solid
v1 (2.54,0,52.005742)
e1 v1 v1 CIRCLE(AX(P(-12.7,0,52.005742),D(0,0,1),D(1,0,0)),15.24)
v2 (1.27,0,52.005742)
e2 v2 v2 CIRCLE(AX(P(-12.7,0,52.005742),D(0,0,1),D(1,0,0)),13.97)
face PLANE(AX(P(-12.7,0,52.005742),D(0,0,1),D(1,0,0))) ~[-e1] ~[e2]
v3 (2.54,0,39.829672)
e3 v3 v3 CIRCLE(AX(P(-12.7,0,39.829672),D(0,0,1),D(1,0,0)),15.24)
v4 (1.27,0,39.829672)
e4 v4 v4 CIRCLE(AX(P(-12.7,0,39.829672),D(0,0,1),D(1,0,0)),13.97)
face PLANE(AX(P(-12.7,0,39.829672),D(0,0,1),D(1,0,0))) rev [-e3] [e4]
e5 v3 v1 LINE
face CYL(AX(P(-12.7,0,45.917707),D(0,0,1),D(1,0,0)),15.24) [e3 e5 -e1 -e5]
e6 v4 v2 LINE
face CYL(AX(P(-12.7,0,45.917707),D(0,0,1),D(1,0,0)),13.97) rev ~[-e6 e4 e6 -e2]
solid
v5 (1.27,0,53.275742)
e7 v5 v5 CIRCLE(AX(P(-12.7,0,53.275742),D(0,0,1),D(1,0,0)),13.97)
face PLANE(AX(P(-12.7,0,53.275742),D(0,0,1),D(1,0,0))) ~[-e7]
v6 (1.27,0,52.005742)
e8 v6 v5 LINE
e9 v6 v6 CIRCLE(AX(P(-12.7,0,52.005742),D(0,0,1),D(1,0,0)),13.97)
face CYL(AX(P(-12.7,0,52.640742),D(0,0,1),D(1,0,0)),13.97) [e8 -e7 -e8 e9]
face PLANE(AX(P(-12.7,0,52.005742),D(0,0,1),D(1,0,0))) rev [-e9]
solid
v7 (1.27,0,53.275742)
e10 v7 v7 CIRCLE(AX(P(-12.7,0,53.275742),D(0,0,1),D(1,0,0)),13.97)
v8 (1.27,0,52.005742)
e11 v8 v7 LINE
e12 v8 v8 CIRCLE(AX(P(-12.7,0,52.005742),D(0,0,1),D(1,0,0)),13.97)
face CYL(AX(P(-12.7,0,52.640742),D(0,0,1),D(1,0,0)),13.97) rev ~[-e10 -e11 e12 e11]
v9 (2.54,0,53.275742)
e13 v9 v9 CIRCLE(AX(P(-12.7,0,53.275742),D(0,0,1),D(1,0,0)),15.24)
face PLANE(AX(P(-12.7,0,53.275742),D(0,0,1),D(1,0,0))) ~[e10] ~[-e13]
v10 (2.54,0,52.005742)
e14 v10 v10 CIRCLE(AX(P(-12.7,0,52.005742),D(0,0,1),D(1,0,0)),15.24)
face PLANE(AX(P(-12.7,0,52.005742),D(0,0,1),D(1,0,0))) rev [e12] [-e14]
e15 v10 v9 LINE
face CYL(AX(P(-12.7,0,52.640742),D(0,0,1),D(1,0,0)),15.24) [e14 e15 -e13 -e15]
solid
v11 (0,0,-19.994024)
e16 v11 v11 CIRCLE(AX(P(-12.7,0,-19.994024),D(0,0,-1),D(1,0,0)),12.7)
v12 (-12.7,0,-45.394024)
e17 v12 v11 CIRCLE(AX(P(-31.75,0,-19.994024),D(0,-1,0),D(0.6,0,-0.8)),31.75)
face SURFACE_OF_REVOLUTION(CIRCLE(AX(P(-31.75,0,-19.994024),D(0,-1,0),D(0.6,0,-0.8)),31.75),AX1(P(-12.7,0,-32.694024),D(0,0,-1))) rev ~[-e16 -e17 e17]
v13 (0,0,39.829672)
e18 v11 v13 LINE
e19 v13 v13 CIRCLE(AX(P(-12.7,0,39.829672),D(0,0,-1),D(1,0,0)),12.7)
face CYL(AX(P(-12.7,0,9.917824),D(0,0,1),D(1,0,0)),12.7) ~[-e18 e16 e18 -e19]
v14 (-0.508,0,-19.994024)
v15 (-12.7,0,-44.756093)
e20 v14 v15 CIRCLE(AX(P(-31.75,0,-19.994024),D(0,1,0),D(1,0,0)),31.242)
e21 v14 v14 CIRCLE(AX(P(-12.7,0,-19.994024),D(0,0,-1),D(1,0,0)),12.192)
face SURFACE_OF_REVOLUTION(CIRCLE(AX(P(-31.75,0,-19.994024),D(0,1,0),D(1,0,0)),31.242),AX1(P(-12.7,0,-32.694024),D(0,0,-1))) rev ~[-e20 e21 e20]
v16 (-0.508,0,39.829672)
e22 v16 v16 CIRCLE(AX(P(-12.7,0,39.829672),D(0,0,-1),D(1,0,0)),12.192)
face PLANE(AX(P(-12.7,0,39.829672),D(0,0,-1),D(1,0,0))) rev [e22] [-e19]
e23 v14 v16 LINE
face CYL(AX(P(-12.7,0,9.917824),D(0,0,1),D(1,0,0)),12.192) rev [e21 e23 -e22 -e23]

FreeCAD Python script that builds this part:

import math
import FreeCAD as App
import Part
import Sketcher
Q = App.Units.Quantity

doc = App.newDocument("Part")
body = doc.addObject("PartDesign::Body", "Body")

sketch1 = body.newObject("Sketcher::SketchObject", "Sketch")
sketch1.AttachmentSupport = (doc.getObject("XZ_Plane"), [""])
sketch1.MapMode = "FlatFace"
sketch1.addGeometry(Part.LineSegment(App.Vector(1.3, 52, 0), App.Vector(1.3, 39.8, 0)), False)
sketch1.addGeometry(Part.LineSegment(App.Vector(1.3, 39.8, 0), App.Vector(2.5, 39.8, 0)), False)
sketch1.addGeometry(Part.LineSegment(App.Vector(2.5, 39.8, 0), App.Vector(2.5, 52, 0)), False)
sketch1.addGeometry(Part.LineSegment(App.Vector(2.5, 52, 0), App.Vector(1.3, 52, 0)), False)
sketch1.addGeometry(Part.LineSegment(App.Vector(-12.7, 39.8, 0), App.Vector(-12.7, 52, 0)), True)
sketch1.addConstraint(Sketcher.Constraint("Coincident", 0, 2, 1, 1))
sketch1.addConstraint(Sketcher.Constraint("Coincident", 1, 2, 2, 1))
sketch1.addConstraint(Sketcher.Constraint("Coincident", 2, 2, 3, 1))
sketch1.addConstraint(Sketcher.Constraint("Coincident", 3, 2, 0, 1))
sketch1.addConstraint(Sketcher.Constraint("Vertical", 0))
sketch1.addConstraint(Sketcher.Constraint("Horizontal", 1))
sketch1.addConstraint(Sketcher.Constraint("Vertical", 2))
sketch1.addConstraint(Sketcher.Constraint("Horizontal", 3))
sketch1.addConstraint(Sketcher.Constraint("Vertical", 4))
sketch1.addConstraint(Sketcher.Constraint("Horizontal", 1, 2, 4, 1))
sketch1.addConstraint(Sketcher.Constraint("Horizontal", 3, 2, 4, 2))
sketch1.addConstraint(Sketcher.Constraint("DistanceX", 1, 1, 1, 2, Q("0.05 in")))
sketch1.addConstraint(Sketcher.Constraint("DistanceX", -1, 1, 1, 2, Q("0.1 in")))
sketch1.addConstraint(Sketcher.Constraint("DistanceX", 4, 1, -1, 1, Q("0.5 in")))
sketch1.addConstraint(Sketcher.Constraint("DistanceY", 0, 2, 0, 1, Q("12.176069 mm")))
sketch1.addConstraint(Sketcher.Constraint("DistanceY", -1, 1, 2, 2, Q("52.005742 mm")))
revolution = body.newObject("PartDesign::Revolution", "Revolution")
revolution.Profile = sketch1
revolution.ReferenceAxis = (sketch1, ["Axis0"])
revolution.Angle = 360
body2 = doc.addObject("PartDesign::Body", "Body001")

sketch2 = body2.newObject("Sketcher::SketchObject", "Sketch001")
sketch2.AttachmentSupport = (doc.getObject("XZ_Plane001"), [""])
sketch2.MapMode = "FlatFace"
sketch2.addGeometry(Part.LineSegment(App.Vector(-0.5, 39.8, 0), App.Vector(-0.5, -20, 0)), False)
sketch2.addGeometry(Part.LineSegment(App.Vector(-0.5, -20, 0), App.Vector(0, -20, 0)), False)
sketch2.addGeometry(Part.LineSegment(App.Vector(0, -20, 0), App.Vector(0, 39.8, 0)), False)
sketch2.addGeometry(Part.LineSegment(App.Vector(0, 39.8, 0), App.Vector(-0.5, 39.8, 0)), False)
sketch2.addGeometry(Part.LineSegment(App.Vector(-12.7, 39.8, 0), App.Vector(-12.7, -20, 0)), True)
sketch2.addConstraint(Sketcher.Constraint("Coincident", 0, 2, 1, 1))
sketch2.addConstraint(Sketcher.Constraint("Coincident", 1, 2, 2, 1))
sketch2.addConstraint(Sketcher.Constraint("Coincident", 2, 2, 3, 1))
sketch2.addConstraint(Sketcher.Constraint("Coincident", 3, 2, 0, 1))
sketch2.addConstraint(Sketcher.Constraint("Vertical", 0))
sketch2.addConstraint(Sketcher.Constraint("Horizontal", 1))
sketch2.addConstraint(Sketcher.Constraint("Vertical", 2))
sketch2.addConstraint(Sketcher.Constraint("Horizontal", 3))
sketch2.addConstraint(Sketcher.Constraint("Vertical", 4))
sketch2.addConstraint(Sketcher.Constraint("PointOnObject", 1, 2, -2))
sketch2.addConstraint(Sketcher.Constraint("Horizontal", 3, 2, 4, 1))
sketch2.addConstraint(Sketcher.Constraint("Horizontal", 1, 2, 4, 2))
sketch2.addConstraint(Sketcher.Constraint("DistanceX", 1, 1, 1, 2, Q("0.02 in")))
sketch2.addConstraint(Sketcher.Constraint("DistanceX", 4, 1, -1, 1, Q("0.5 in")))
sketch2.addConstraint(Sketcher.Constraint("DistanceY", 0, 2, 0, 1, Q("59.823696 mm")))
sketch2.addConstraint(Sketcher.Constraint("DistanceY", 0, 2, -1, 1, Q("19.994024 mm")))
revolution2 = body2.newObject("PartDesign::Revolution", "Revolution001")
revolution2.Profile = sketch2
revolution2.ReferenceAxis = (sketch2, ["Axis0"])
revolution2.Angle = 360

sketch3 = body2.newObject("Sketcher::SketchObject", "Sketch002")
sketch3.AttachmentSupport = (doc.getObject("XZ_Plane001"), [""])
sketch3.MapMode = "FlatFace"
sketch3.addGeometry(Part.ArcOfCircle(Part.Circle(App.Vector(-31.8, -20, 0), App.Vector(0, 0, 1), 31.8), math.radians(-53), math.radians(0)), False)
sketch3.addGeometry(Part.LineSegment(App.Vector(0, -20, 0), App.Vector(-0.5, -20, 0)), False)
sketch3.addGeometry(Part.ArcOfCircle(Part.Circle(App.Vector(-31.8, -20, 0), App.Vector(0, 0, 1), 31.2), math.radians(-52), math.radians(0)), False)
sketch3.addGeometry(Part.LineSegment(App.Vector(-12.7, -44.8, 0), App.Vector(-12.7, -45.4, 0)), False)
sketch3.addGeometry(Part.LineSegment(App.Vector(-12.7, -20, 0), App.Vector(-12.7, -45.4, 0)), True)
sketch3.addConstraint(Sketcher.Constraint("Coincident", 0, 2, 1, 1))
sketch3.addConstraint(Sketcher.Constraint("Coincident", 1, 2, 2, 2))
sketch3.addConstraint(Sketcher.Constraint("Coincident", 2, 1, 3, 1))
sketch3.addConstraint(Sketcher.Constraint("Coincident", 3, 2, 0, 1))
sketch3.addConstraint(Sketcher.Constraint("Horizontal", 1))
sketch3.addConstraint(Sketcher.Constraint("Vertical", 3))
sketch3.addConstraint(Sketcher.Constraint("Vertical", 4))
sketch3.addConstraint(Sketcher.Constraint("Coincident", 2, 3, 0, 3))
sketch3.addConstraint(Sketcher.Constraint("Coincident", 4, 2, 3, 2))
sketch3.addConstraint(Sketcher.Constraint("PointOnObject", 0, 2, -2))
sketch3.addConstraint(Sketcher.Constraint("Horizontal", 2, 3, 0, 2))
sketch3.addConstraint(Sketcher.Constraint("Horizontal", 1, 2, 4, 1))
sketch3.addConstraint(Sketcher.Constraint("DistanceY", 4, 2, 4, 1, Q("1 in")))
sketch3.addConstraint(Sketcher.Constraint("Radius", 0, Q("1.25 in")))
sketch3.addConstraint(Sketcher.Constraint("Radius", 2, Q("1.23 in")))
sketch3.addConstraint(Sketcher.Constraint("DistanceY", 0, 3, -1, 1, Q("19.994024 mm")))
revolution3 = body2.newObject("PartDesign::Revolution", "Revolution002")
revolution3.Profile = sketch3
revolution3.ReferenceAxis = (sketch3, ["Axis0"])
revolution3.Angle = 360
body3 = doc.addObject("PartDesign::Body", "Body002")

sketch4 = body3.newObject("Sketcher::SketchObject", "Sketch003")
sketch4.AttachmentSupport = (doc.getObject("XZ_Plane002"), [""])
sketch4.MapMode = "FlatFace"
sketch4.addGeometry(Part.LineSegment(App.Vector(-12.7, 53.3, 0), App.Vector(-12.7, 52, 0)), False)
sketch4.addGeometry(Part.LineSegment(App.Vector(-12.7, 52, 0), App.Vector(1.3, 52, 0)), False)
sketch4.addGeometry(Part.LineSegment(App.Vector(1.3, 52, 0), App.Vector(1.3, 53.3, 0)), False)
sketch4.addGeometry(Part.LineSegment(App.Vector(1.3, 53.3, 0), App.Vector(-12.7, 53.3, 0)), False)
sketch4.addGeometry(Part.LineSegment(App.Vector(-12.7, 52, 0), App.Vector(-12.7, 53.3, 0)), True)
sketch4.addConstraint(Sketcher.Constraint("Coincident", 0, 2, 1, 1))
sketch4.addConstraint(Sketcher.Constraint("Coincident", 1, 2, 2, 1))
sketch4.addConstraint(Sketcher.Constraint("Coincident", 2, 2, 3, 1))
sketch4.addConstraint(Sketcher.Constraint("Coincident", 3, 2, 0, 1))
sketch4.addConstraint(Sketcher.Constraint("Vertical", 0))
sketch4.addConstraint(Sketcher.Constraint("Horizontal", 1))
sketch4.addConstraint(Sketcher.Constraint("Vertical", 2))
sketch4.addConstraint(Sketcher.Constraint("Horizontal", 3))
sketch4.addConstraint(Sketcher.Constraint("Vertical", 4))
sketch4.addConstraint(Sketcher.Constraint("Coincident", 4, 1, 0, 2))
sketch4.addConstraint(Sketcher.Constraint("Horizontal", 2, 2, 4, 2))
sketch4.addConstraint(Sketcher.Constraint("DistanceX", 1, 1, 1, 2, Q("0.55 in")))
sketch4.addConstraint(Sketcher.Constraint("DistanceY", 0, 2, 0, 1, Q("0.05 in")))
sketch4.addConstraint(Sketcher.Constraint("DistanceX", 0, 2, -1, 1, Q("0.5 in")))
sketch4.addConstraint(Sketcher.Constraint("DistanceY", -1, 1, 0, 2, Q("52.005742 mm")))
revolution4 = body3.newObject("PartDesign::Revolution", "Revolution003")
revolution4.Profile = sketch4
revolution4.ReferenceAxis = (sketch4, ["Axis0"])
revolution4.Angle = 360
body4 = doc.addObject("PartDesign::Body", "Body003")

sketch5 = body4.newObject("Sketcher::SketchObject", "Sketch004")
sketch5.AttachmentSupport = (doc.getObject("XZ_Plane003"), [""])
sketch5.MapMode = "FlatFace"
sketch5.addGeometry(Part.LineSegment(App.Vector(1.3, 53.3, 0), App.Vector(1.3, 52, 0)), False)
sketch5.addGeometry(Part.LineSegment(App.Vector(1.3, 52, 0), App.Vector(2.5, 52, 0)), False)
sketch5.addGeometry(Part.LineSegment(App.Vector(2.5, 52, 0), App.Vector(2.5, 53.3, 0)), False)
sketch5.addGeometry(Part.LineSegment(App.Vector(2.5, 53.3, 0), App.Vector(1.3, 53.3, 0)), False)
sketch5.addGeometry(Part.LineSegment(App.Vector(-12.7, 52, 0), App.Vector(-12.7, 53.3, 0)), True)
sketch5.addConstraint(Sketcher.Constraint("Coincident", 0, 2, 1, 1))
sketch5.addConstraint(Sketcher.Constraint("Coincident", 1, 2, 2, 1))
sketch5.addConstraint(Sketcher.Constraint("Coincident", 2, 2, 3, 1))
sketch5.addConstraint(Sketcher.Constraint("Coincident", 3, 2, 0, 1))
sketch5.addConstraint(Sketcher.Constraint("Vertical", 0))
sketch5.addConstraint(Sketcher.Constraint("Horizontal", 1))
sketch5.addConstraint(Sketcher.Constraint("Vertical", 2))
sketch5.addConstraint(Sketcher.Constraint("Horizontal", 3))
sketch5.addConstraint(Sketcher.Constraint("Vertical", 4))
sketch5.addConstraint(Sketcher.Constraint("Horizontal", 1, 2, 4, 1))
sketch5.addConstraint(Sketcher.Constraint("Horizontal", 3, 2, 4, 2))
sketch5.addConstraint(Sketcher.Constraint("Equal", 3, 0))
sketch5.addConstraint(Sketcher.Constraint("DistanceX", 1, 1, 1, 2, Q("0.05 in")))
sketch5.addConstraint(Sketcher.Constraint("DistanceX", -1, 1, 1, 2, Q("0.1 in")))
sketch5.addConstraint(Sketcher.Constraint("DistanceX", 4, 1, -1, 1, Q("0.5 in")))
sketch5.addConstraint(Sketcher.Constraint("DistanceY", -1, 1, 0, 2, Q("52.005742 mm")))
revolution5 = body4.newObject("PartDesign::Revolution", "Revolution004")
revolution5.Profile = sketch5
revolution5.ReferenceAxis = (sketch5, ["Axis0"])
revolution5.Angle = 360

doc.recompute()
